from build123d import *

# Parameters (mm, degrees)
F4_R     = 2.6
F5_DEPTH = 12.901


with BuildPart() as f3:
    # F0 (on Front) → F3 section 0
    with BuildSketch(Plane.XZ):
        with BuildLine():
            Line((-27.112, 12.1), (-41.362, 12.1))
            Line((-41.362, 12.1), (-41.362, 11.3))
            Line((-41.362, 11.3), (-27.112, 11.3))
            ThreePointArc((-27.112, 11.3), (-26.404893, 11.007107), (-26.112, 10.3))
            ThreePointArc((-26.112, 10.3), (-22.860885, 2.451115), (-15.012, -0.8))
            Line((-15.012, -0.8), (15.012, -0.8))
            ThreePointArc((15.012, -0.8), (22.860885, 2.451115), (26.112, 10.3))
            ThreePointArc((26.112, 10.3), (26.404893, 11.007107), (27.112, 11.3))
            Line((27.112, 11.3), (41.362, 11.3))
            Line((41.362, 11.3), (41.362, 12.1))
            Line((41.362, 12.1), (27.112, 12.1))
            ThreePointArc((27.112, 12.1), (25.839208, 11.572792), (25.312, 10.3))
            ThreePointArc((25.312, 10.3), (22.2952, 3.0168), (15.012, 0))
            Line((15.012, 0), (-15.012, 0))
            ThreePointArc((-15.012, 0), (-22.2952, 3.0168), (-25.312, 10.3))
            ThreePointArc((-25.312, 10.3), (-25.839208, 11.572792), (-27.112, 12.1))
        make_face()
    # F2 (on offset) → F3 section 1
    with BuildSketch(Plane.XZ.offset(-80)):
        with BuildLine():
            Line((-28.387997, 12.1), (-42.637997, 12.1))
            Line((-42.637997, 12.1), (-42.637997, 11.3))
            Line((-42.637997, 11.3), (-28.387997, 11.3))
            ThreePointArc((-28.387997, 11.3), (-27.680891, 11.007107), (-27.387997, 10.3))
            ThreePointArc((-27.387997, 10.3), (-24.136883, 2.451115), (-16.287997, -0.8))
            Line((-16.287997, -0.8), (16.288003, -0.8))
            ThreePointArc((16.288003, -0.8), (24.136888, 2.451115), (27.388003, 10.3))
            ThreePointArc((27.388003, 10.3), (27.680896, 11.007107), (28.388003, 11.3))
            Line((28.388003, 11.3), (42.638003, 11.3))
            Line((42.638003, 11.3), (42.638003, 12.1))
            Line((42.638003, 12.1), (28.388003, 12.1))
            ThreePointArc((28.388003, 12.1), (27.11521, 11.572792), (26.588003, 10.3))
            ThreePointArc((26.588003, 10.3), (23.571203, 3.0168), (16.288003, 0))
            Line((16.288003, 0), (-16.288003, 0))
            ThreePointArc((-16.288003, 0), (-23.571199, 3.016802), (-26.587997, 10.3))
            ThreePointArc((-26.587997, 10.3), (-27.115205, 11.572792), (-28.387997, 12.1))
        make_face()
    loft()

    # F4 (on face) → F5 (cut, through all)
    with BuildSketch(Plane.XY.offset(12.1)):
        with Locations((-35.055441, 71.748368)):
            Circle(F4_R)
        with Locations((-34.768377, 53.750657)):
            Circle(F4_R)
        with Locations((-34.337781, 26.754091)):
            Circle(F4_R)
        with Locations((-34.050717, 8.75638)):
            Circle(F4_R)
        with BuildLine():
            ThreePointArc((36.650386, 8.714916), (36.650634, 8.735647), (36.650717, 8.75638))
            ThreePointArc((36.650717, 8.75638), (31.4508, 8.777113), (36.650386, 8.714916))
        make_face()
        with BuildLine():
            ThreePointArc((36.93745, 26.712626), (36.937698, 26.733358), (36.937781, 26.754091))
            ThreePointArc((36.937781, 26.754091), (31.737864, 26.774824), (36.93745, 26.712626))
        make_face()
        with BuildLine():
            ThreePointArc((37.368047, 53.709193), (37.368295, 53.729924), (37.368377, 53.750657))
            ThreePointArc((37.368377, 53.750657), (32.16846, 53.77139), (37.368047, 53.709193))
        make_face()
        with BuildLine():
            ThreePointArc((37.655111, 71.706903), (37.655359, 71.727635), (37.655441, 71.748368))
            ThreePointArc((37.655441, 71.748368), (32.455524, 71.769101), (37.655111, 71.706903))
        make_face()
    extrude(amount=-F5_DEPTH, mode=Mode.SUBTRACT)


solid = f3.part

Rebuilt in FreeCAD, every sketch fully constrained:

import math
import FreeCAD as App
import Part
import Sketcher
from FreeCAD import Vector

doc = App.newDocument("Part")
params = doc.addObject("Spreadsheet::Sheet", "Params")
for row, (alias, value) in enumerate([
    ("sketch1_radius", "0.999999 mm"),
    ("sketch1_radius2", "11.100001 mm"),
    ("sketch1_radius3", "1.800001 mm"),
    ("sketch1_width", "14.25 mm"),
    ("sketch2_radius", "1.000001 mm"),
    ("sketch2_radius2", "11.099999 mm"),
    ("sketch2_radius3", "1.799999 mm"),
    ("sketch2_width", "14.25 mm"),
    ("sketch3_diameter", "5.2 mm"),
], start=1):
    params.set(f"A{row}", alias)
    params.set(f"B{row}", "=" + value)
    params.setAlias(f"B{row}", alias)

body = doc.addObject("PartDesign::Body", "Body")

# Sketch on XZ plane
sketch1 = body.newObject("Sketcher::SketchObject", "Sketch")
sketch1.AttachmentSupport = (doc.getObject("XZ_Plane"), [""])
sketch1.MapMode = "FlatFace"
sketch1.addGeometry([
    Part.LineSegment(Vector(-27.112, 12.1, 0), Vector(-41.362, 12.1, 0)),  # 0
    Part.LineSegment(Vector(-41.362, 12.1, 0), Vector(-41.362, 11.3, 0)),  # 1
    Part.LineSegment(Vector(-41.362, 11.3, 0), Vector(-27.112, 11.3, 0)),  # 2
    Part.ArcOfCircle(Part.Circle(Vector(-27.111999, 10.300001, 0), Vector(0, 0, 1), 0.999999), math.radians(-0.000043), math.radians(90.000043)),  # 3
    Part.ArcOfCircle(Part.Circle(Vector(-15.011999, 10.300001, 0), Vector(0, 0, 1), 11.100001), math.radians(-179.999995), math.radians(-90.000005)),  # 4
    Part.LineSegment(Vector(-15.012, -0.8, 0), Vector(15.012, -0.8, 0)),  # 5
    Part.ArcOfCircle(Part.Circle(Vector(15.011999, 10.300001, 0), Vector(0, 0, 1), 11.100001), math.radians(-89.999995), math.radians(-0.000005)),  # 6
    Part.ArcOfCircle(Part.Circle(Vector(27.111999, 10.300001, 0), Vector(0, 0, 1), 0.999999), math.radians(89.999957), math.radians(180.000043)),  # 7
    Part.LineSegment(Vector(27.112, 11.3, 0), Vector(41.362, 11.3, 0)),  # 8
    Part.LineSegment(Vector(41.362, 11.3, 0), Vector(41.362, 12.1, 0)),  # 9
    Part.LineSegment(Vector(41.362, 12.1, 0), Vector(27.112, 12.1, 0)),  # 10
    Part.ArcOfCircle(Part.Circle(Vector(27.112001, 10.299999, 0), Vector(0, 0, 1), 1.800001), math.radians(90.000022), math.radians(179.999978)),  # 11
    Part.ArcOfCircle(Part.Circle(Vector(15.012001, 10.299999, 0), Vector(0, 0, 1), 10.299999), math.radians(-90.000003), math.radians(0.000003)),  # 12
    Part.LineSegment(Vector(15.012, 0, 0), Vector(-15.012, 0, 0)),  # 13
    Part.ArcOfCircle(Part.Circle(Vector(-15.012001, 10.299999, 0), Vector(0, 0, 1), 10.299999), math.radians(179.999997), math.radians(270.000003)),  # 14
    Part.ArcOfCircle(Part.Circle(Vector(-27.112001, 10.299999, 0), Vector(0, 0, 1), 1.800001), math.radians(0.000022), math.radians(89.999978)),  # 15
], False)
sketch1.addConstraint([
    Sketcher.Constraint("Coincident", 0, 2, 1, 1),
    Sketcher.Constraint("Coincident", 1, 2, 2, 1),
    Sketcher.Constraint("Tangent", 2, 2, 3, 2),
    Sketcher.Constraint("Tangent", 3, 1, 4, 1),
    Sketcher.Constraint("Tangent", 4, 2, 5, 1),
    Sketcher.Constraint("Tangent", 5, 2, 6, 1),
    Sketcher.Constraint("Tangent", 6, 2, 7, 2),
    Sketcher.Constraint("Tangent", 7, 1, 8, 1),
    Sketcher.Constraint("Coincident", 8, 2, 9, 1),
    Sketcher.Constraint("Coincident", 9, 2, 10, 1),
    Sketcher.Constraint("Tangent", 10, 2, 11, 1),
    Sketcher.Constraint("Tangent", 11, 2, 12, 2),
    Sketcher.Constraint("Tangent", 12, 1, 13, 1),
    Sketcher.Constraint("Tangent", 13, 2, 14, 2),
    Sketcher.Constraint("Tangent", 14, 1, 15, 1),
    Sketcher.Constraint("Tangent", 15, 2, 0, 1),
    Sketcher.Constraint("Horizontal", 0),
    Sketcher.Constraint("Vertical", 1),
    Sketcher.Constraint("Horizontal", 2),
    Sketcher.Constraint("Horizontal", 5),
    Sketcher.Constraint("Horizontal", 8),
    Sketcher.Constraint("Vertical", 9),
    Sketcher.Constraint("Horizontal", 10),
    Sketcher.Constraint("Horizontal", 13),
    Sketcher.Constraint("Coincident", 11, 3, 7, 3),
    Sketcher.Constraint("Coincident", 12, 3, 6, 3),
    Sketcher.Constraint("Coincident", 14, 3, 4, 3),
    Sketcher.Constraint("Coincident", 15, 3, 3, 3),
    Sketcher.Constraint("Equal", 4, 6),
    Sketcher.Constraint("Equal", 3, 7),
    Sketcher.Constraint("Symmetric", 12, 1, 13, 2, -1, 1),
    Sketcher.Constraint("Symmetric", 1, 2, 8, 2, -2),
    Sketcher.Constraint("Horizontal", 3, 3, 4, 3),
    Sketcher.Constraint("Radius", 3, 0.999999),
    Sketcher.Constraint("Radius", 4, 11.100001),
    Sketcher.Constraint("Radius", 11, 1.800001),
    Sketcher.Constraint("DistanceX", 0, 2, 0, 1, 14.25),
    Sketcher.Constraint("DistanceX", 5, 1, 5, 2, 30.024),
])
sketch1.setExpression("Constraints[33]", "Params.sketch1_radius")
sketch1.setExpression("Constraints[34]", "Params.sketch1_radius2")
sketch1.setExpression("Constraints[35]", "Params.sketch1_radius3")
sketch1.setExpression("Constraints[36]", "Params.sketch1_width")

# Sketch on XZ plane
sketch2 = body.newObject("Sketcher::SketchObject", "Sketch001")
sketch2.AttachmentSupport = (doc.getObject("XZ_Plane"), [""])
sketch2.MapMode = "FlatFace"
sketch2.AttachmentOffset = App.Placement(Vector(0, 0, -80), App.Rotation())
sketch2.addGeometry([
    Part.LineSegment(Vector(-28.387997, 12.1, 0), Vector(-42.637997, 12.1, 0)),  # 0
    Part.LineSegment(Vector(-42.637997, 12.1, 0), Vector(-42.637997, 11.3, 0)),  # 1
    Part.LineSegment(Vector(-42.637997, 11.3, 0), Vector(-28.387997, 11.3, 0)),  # 2
    Part.ArcOfCircle(Part.Circle(Vector(-28.387998, 10.299999, 0), Vector(0, 0, 1), 1.000001), math.radians(0.000055), math.radians(89.999945)),  # 3
    Part.ArcOfCircle(Part.Circle(Vector(-16.287998, 10.299999, 0), Vector(0, 0, 1), 11.099999), math.radians(179.999996), math.radians(270.000004)),  # 4
    Part.LineSegment(Vector(-16.287997, -0.8, 0), Vector(16.288003, -0.8, 0)),  # 5
    Part.ArcOfCircle(Part.Circle(Vector(16.288002, 10.300001, 0), Vector(0, 0, 1), 11.100001), math.radians(-89.999995), math.radians(-0.000005)),  # 6
    Part.ArcOfCircle(Part.Circle(Vector(28.388002, 10.300001, 0), Vector(0, 0, 1), 0.999999), math.radians(89.999957), math.radians(180.000043)),  # 7
    Part.LineSegment(Vector(28.388003, 11.3, 0), Vector(42.638003, 11.3, 0)),  # 8
    Part.LineSegment(Vector(42.638003, 11.3, 0), Vector(42.638003, 12.1, 0)),  # 9
    Part.LineSegment(Vector(42.638003, 12.1, 0), Vector(28.388003, 12.1, 0)),  # 10
    Part.ArcOfCircle(Part.Circle(Vector(28.388002, 10.300001, 0), Vector(0, 0, 1), 1.799999), math.radians(89.999968), math.radians(180.000032)),  # 11
    Part.ArcOfCircle(Part.Circle(Vector(16.288004, 10.299999, 0), Vector(0, 0, 1), 10.299999), math.radians(-90.000003), math.radians(0.000003)),  # 12
    Part.LineSegment(Vector(16.288003, 0, 0), Vector(-16.288003, 0, 0)),  # 13
    Part.ArcOfCircle(Part.Circle(Vector(-16.287998, 10.299999, 0), Vector(0, 0, 1), 10.299999), math.radians(179.999997), math.radians(269.99997)),  # 14
    Part.ArcOfCircle(Part.Circle(Vector(-28.387998, 10.299999, 0), Vector(0, 0, 1), 1.800001), math.radians(0.000022), math.radians(89.999978)),  # 15
], False)
sketch2.addConstraint([
    Sketcher.Constraint("Coincident", 0, 2, 1, 1),
    Sketcher.Constraint("Coincident", 1, 2, 2, 1),
    Sketcher.Constraint("Tangent", 2, 2, 3, 2),
    Sketcher.Constraint("Tangent", 3, 1, 4, 1),
    Sketcher.Constraint("Tangent", 4, 2, 5, 1),
    Sketcher.Constraint("Tangent", 5, 2, 6, 1),
    Sketcher.Constraint("Tangent", 6, 2, 7, 2),
    Sketcher.Constraint("Tangent", 7, 1, 8, 1),
    Sketcher.Constraint("Coincident", 8, 2, 9, 1),
    Sketcher.Constraint("Coincident", 9, 2, 10, 1),
    Sketcher.Constraint("Tangent", 10, 2, 11, 1),
    Sketcher.Constraint("Tangent", 11, 2, 12, 2),
    Sketcher.Constraint("Tangent", 12, 1, 13, 1),
    Sketcher.Constraint("Tangent", 13, 2, 14, 2),
    Sketcher.Constraint("Tangent", 14, 1, 15, 1),
    Sketcher.Constraint("Tangent", 15, 2, 0, 1),
    Sketcher.Constraint("Horizontal", 0),
    Sketcher.Constraint("Vertical", 1),
    Sketcher.Constraint("Horizontal", 2),
    Sketcher.Constraint("Horizontal", 5),
    Sketcher.Constraint("Horizontal", 8),
    Sketcher.Constraint("Vertical", 9),
    Sketcher.Constraint("Horizontal", 10),
    Sketcher.Constraint("Horizontal", 13),
    Sketcher.Constraint("Coincident", 11, 3, 7, 3),
    Sketcher.Constraint("Coincident", 12, 3, 6, 3),
    Sketcher.Constraint("Coincident", 14, 3, 4, 3),
    Sketcher.Constraint("Coincident", 15, 3, 3, 3),
    Sketcher.Constraint("Equal", 4, 6),
    Sketcher.Constraint("Equal", 3, 7),
    Sketcher.Constraint("Symmetric", 12, 1, 13, 2, -1, 1),
    Sketcher.Constraint("Symmetric", 1, 2, 8, 2, -2),
    Sketcher.Constraint("Horizontal", 3, 3, 4, 3),
    Sketcher.Constraint("Radius", 3, 1.000001),
    Sketcher.Constraint("Radius", 4, 11.099999),
    Sketcher.Constraint("Radius", 11, 1.799999),
    Sketcher.Constraint("DistanceX", 0, 2, 0, 1, 14.25),
    Sketcher.Constraint("DistanceX", 5, 1, 5, 2, 32.576),
])
sketch2.setExpression("Constraints[33]", "Params.sketch2_radius")
sketch2.setExpression("Constraints[34]", "Params.sketch2_radius2")
sketch2.setExpression("Constraints[35]", "Params.sketch2_radius3")
sketch2.setExpression("Constraints[36]", "Params.sketch2_width")

additiveloft = body.newObject("PartDesign::AdditiveLoft", "AdditiveLoft")
additiveloft.Profile = sketch1
additiveloft.Sections = [sketch2]

# Sketch on XY plane
sketch3 = body.newObject("Sketcher::SketchObject", "Sketch002")
sketch3.AttachmentSupport = (doc.getObject("XY_Plane"), [""])
sketch3.MapMode = "FlatFace"
sketch3.AttachmentOffset = App.Placement(Vector(0, 0, 12.1), App.Rotation())
sketch3.addGeometry([
    Part.Circle(Vector(-35.055441, 71.748368, 0), Vector(0, 0, 1), 2.6),  # 0
    Part.Circle(Vector(-34.768377, 53.750657, 0), Vector(0, 0, 1), 2.6),  # 1
    Part.Circle(Vector(-34.337781, 26.754091, 0), Vector(0, 0, 1), 2.6),  # 2
    Part.Circle(Vector(-34.050717, 8.75638, 0), Vector(0, 0, 1), 2.6),  # 3
    Part.ArcOfCircle(Part.Circle(Vector(34.045734, 8.756442, 0), Vector(0, 0, 1), 2.604983), math.radians(-0.913386), math.radians(-0.001359)),  # 4
    Part.ArcOfCircle(Part.Circle(Vector(34.050717, 8.756402, 0), Vector(0, 0, 1), 2.6), math.radians(-0.000485), math.radians(359.08574)),  # 5
    Part.ArcOfCircle(Part.Circle(Vector(34.332547, 26.754154, 0), Vector(0, 0, 1), 2.605234), math.radians(-0.913342), math.radians(-0.001381)),  # 6
    Part.ArcOfCircle(Part.Circle(Vector(34.337781, 26.754112, 0), Vector(0, 0, 1), 2.6), math.radians(-0.000463), math.radians(359.08574)),  # 7
    Part.ArcOfCircle(Part.Circle(Vector(34.779086, 53.750531, 0), Vector(0, 0, 1), 2.589291), math.radians(-0.914768), math.radians(0.002786)),  # 8
    Part.ArcOfCircle(Part.Circle(Vector(34.768377, 53.750616, 0), Vector(0, 0, 1), 2.6), math.radians(0.000896), math.radians(359.087122)),  # 9
    Part.ArcOfCircle(Part.Circle(Vector(35.065901, 71.748243, 0), Vector(0, 0, 1), 2.58954), math.radians(-0.914724), math.radians(0.002764)),  # 10
    Part.ArcOfCircle(Part.Circle(Vector(35.055441, 71.748326, 0), Vector(0, 0, 1), 2.6), math.radians(0.000918), math.radians(359.087122)),  # 11
], False)
sketch3.addConstraint([
    Sketcher.Constraint("Coincident", 4, 1, 5, 2),
    Sketcher.Constraint("Coincident", 5, 1, 4, 2),
    Sketcher.Constraint("Coincident", 6, 1, 7, 2),
    Sketcher.Constraint("Coincident", 7, 1, 6, 2),
    Sketcher.Constraint("Coincident", 8, 1, 9, 2),
    Sketcher.Constraint("Coincident", 9, 1, 8, 2),
    Sketcher.Constraint("Coincident", 10, 1, 11, 2),
    Sketcher.Constraint("Coincident", 11, 1, 10, 2),
    Sketcher.Constraint("Equal", 0, 1),
    Sketcher.Constraint("Equal", 1, 2),
    Sketcher.Constraint("Equal", 2, 3),
    Sketcher.Constraint("Equal", 3, 5),
    Sketcher.Constraint("Equal", 5, 7),
    Sketcher.Constraint("Equal", 7, 9),
    Sketcher.Constraint("Equal", 9, 11),
    Sketcher.Constraint("Horizontal", 3, 3, 5, 1),
    Sketcher.Constraint("Horizontal", 2, 3, 7, 1),
    Sketcher.Constraint("Horizontal", 1, 3, 9, 1),
    Sketcher.Constraint("Horizontal", 0, 3, 11, 1),
    Sketcher.Constraint("Diameter", 0, 5.2),
    Sketcher.Constraint("Radius", 8, 2.589291),
    Sketcher.Constraint("Radius", 10, 2.58954),
    Sketcher.Constraint("Radius", 4, 2.604983),
    Sketcher.Constraint("Radius", 6, 2.605234),
    Sketcher.Constraint("DistanceX", -1, 1, 10, 3, 35.065901),
    Sketcher.Constraint("DistanceX", 2, 3, 5, 3, 68.388498),
    Sketcher.Constraint("DistanceX", 3, 3, 7, 3, 68.388498),
    Sketcher.Constraint("DistanceX", 8, 3, 4, 1, 1.8713),
    Sketcher.Constraint("DistanceX", 0, 3, -1, 1, 35.055441),
    Sketcher.Constraint("DistanceY", -1, 1, 0, 3, 71.748368),
    Sketcher.Constraint("DistanceX", 2, 3, -1, 1, 34.337781),
    Sketcher.Constraint("DistanceY", -1, 1, 2, 3, 26.754091),
    Sketcher.Constraint("DistanceY", -1, 1, 3, 3, 8.75638),
    Sketcher.Constraint("DistanceY", -1, 1, 4, 3, 8.756442),
    Sketcher.Constraint("DistanceX", -1, 1, 7, 3, 34.337781),
    Sketcher.Constraint("DistanceY", -1, 1, 8, 3, 53.750531),
    Sketcher.Constraint("DistanceX", -1, 1, 6, 1, 36.93745),
    Sketcher.Constraint("DistanceX", -1, 1, 10, 1, 37.655111),
    Sketcher.Constraint("DistanceY", 1, 3, 0, 3, 17.997711),
    Sketcher.Constraint("DistanceX", 1, 3, 3, 3, 0.71766),
    Sketcher.Constraint("DistanceY", 5, 3, 6, 3, 17.997752),
    Sketcher.Constraint("DistanceX", 6, 3, 8, 3, 0.446539),
    Sketcher.Constraint("DistanceY", 8, 3, 10, 3, 17.997712),
    Sketcher.Constraint("DistanceY", 9, 3, 11, 3, 17.99771),
])
sketch3.setExpression("Constraints[19]", "Params.sketch3_diameter")
pocket1 = body.newObject("PartDesign::Pocket", "Pocket")
pocket1.Profile = sketch3
pocket1.Type = "ThroughAll"

doc.recompute()
